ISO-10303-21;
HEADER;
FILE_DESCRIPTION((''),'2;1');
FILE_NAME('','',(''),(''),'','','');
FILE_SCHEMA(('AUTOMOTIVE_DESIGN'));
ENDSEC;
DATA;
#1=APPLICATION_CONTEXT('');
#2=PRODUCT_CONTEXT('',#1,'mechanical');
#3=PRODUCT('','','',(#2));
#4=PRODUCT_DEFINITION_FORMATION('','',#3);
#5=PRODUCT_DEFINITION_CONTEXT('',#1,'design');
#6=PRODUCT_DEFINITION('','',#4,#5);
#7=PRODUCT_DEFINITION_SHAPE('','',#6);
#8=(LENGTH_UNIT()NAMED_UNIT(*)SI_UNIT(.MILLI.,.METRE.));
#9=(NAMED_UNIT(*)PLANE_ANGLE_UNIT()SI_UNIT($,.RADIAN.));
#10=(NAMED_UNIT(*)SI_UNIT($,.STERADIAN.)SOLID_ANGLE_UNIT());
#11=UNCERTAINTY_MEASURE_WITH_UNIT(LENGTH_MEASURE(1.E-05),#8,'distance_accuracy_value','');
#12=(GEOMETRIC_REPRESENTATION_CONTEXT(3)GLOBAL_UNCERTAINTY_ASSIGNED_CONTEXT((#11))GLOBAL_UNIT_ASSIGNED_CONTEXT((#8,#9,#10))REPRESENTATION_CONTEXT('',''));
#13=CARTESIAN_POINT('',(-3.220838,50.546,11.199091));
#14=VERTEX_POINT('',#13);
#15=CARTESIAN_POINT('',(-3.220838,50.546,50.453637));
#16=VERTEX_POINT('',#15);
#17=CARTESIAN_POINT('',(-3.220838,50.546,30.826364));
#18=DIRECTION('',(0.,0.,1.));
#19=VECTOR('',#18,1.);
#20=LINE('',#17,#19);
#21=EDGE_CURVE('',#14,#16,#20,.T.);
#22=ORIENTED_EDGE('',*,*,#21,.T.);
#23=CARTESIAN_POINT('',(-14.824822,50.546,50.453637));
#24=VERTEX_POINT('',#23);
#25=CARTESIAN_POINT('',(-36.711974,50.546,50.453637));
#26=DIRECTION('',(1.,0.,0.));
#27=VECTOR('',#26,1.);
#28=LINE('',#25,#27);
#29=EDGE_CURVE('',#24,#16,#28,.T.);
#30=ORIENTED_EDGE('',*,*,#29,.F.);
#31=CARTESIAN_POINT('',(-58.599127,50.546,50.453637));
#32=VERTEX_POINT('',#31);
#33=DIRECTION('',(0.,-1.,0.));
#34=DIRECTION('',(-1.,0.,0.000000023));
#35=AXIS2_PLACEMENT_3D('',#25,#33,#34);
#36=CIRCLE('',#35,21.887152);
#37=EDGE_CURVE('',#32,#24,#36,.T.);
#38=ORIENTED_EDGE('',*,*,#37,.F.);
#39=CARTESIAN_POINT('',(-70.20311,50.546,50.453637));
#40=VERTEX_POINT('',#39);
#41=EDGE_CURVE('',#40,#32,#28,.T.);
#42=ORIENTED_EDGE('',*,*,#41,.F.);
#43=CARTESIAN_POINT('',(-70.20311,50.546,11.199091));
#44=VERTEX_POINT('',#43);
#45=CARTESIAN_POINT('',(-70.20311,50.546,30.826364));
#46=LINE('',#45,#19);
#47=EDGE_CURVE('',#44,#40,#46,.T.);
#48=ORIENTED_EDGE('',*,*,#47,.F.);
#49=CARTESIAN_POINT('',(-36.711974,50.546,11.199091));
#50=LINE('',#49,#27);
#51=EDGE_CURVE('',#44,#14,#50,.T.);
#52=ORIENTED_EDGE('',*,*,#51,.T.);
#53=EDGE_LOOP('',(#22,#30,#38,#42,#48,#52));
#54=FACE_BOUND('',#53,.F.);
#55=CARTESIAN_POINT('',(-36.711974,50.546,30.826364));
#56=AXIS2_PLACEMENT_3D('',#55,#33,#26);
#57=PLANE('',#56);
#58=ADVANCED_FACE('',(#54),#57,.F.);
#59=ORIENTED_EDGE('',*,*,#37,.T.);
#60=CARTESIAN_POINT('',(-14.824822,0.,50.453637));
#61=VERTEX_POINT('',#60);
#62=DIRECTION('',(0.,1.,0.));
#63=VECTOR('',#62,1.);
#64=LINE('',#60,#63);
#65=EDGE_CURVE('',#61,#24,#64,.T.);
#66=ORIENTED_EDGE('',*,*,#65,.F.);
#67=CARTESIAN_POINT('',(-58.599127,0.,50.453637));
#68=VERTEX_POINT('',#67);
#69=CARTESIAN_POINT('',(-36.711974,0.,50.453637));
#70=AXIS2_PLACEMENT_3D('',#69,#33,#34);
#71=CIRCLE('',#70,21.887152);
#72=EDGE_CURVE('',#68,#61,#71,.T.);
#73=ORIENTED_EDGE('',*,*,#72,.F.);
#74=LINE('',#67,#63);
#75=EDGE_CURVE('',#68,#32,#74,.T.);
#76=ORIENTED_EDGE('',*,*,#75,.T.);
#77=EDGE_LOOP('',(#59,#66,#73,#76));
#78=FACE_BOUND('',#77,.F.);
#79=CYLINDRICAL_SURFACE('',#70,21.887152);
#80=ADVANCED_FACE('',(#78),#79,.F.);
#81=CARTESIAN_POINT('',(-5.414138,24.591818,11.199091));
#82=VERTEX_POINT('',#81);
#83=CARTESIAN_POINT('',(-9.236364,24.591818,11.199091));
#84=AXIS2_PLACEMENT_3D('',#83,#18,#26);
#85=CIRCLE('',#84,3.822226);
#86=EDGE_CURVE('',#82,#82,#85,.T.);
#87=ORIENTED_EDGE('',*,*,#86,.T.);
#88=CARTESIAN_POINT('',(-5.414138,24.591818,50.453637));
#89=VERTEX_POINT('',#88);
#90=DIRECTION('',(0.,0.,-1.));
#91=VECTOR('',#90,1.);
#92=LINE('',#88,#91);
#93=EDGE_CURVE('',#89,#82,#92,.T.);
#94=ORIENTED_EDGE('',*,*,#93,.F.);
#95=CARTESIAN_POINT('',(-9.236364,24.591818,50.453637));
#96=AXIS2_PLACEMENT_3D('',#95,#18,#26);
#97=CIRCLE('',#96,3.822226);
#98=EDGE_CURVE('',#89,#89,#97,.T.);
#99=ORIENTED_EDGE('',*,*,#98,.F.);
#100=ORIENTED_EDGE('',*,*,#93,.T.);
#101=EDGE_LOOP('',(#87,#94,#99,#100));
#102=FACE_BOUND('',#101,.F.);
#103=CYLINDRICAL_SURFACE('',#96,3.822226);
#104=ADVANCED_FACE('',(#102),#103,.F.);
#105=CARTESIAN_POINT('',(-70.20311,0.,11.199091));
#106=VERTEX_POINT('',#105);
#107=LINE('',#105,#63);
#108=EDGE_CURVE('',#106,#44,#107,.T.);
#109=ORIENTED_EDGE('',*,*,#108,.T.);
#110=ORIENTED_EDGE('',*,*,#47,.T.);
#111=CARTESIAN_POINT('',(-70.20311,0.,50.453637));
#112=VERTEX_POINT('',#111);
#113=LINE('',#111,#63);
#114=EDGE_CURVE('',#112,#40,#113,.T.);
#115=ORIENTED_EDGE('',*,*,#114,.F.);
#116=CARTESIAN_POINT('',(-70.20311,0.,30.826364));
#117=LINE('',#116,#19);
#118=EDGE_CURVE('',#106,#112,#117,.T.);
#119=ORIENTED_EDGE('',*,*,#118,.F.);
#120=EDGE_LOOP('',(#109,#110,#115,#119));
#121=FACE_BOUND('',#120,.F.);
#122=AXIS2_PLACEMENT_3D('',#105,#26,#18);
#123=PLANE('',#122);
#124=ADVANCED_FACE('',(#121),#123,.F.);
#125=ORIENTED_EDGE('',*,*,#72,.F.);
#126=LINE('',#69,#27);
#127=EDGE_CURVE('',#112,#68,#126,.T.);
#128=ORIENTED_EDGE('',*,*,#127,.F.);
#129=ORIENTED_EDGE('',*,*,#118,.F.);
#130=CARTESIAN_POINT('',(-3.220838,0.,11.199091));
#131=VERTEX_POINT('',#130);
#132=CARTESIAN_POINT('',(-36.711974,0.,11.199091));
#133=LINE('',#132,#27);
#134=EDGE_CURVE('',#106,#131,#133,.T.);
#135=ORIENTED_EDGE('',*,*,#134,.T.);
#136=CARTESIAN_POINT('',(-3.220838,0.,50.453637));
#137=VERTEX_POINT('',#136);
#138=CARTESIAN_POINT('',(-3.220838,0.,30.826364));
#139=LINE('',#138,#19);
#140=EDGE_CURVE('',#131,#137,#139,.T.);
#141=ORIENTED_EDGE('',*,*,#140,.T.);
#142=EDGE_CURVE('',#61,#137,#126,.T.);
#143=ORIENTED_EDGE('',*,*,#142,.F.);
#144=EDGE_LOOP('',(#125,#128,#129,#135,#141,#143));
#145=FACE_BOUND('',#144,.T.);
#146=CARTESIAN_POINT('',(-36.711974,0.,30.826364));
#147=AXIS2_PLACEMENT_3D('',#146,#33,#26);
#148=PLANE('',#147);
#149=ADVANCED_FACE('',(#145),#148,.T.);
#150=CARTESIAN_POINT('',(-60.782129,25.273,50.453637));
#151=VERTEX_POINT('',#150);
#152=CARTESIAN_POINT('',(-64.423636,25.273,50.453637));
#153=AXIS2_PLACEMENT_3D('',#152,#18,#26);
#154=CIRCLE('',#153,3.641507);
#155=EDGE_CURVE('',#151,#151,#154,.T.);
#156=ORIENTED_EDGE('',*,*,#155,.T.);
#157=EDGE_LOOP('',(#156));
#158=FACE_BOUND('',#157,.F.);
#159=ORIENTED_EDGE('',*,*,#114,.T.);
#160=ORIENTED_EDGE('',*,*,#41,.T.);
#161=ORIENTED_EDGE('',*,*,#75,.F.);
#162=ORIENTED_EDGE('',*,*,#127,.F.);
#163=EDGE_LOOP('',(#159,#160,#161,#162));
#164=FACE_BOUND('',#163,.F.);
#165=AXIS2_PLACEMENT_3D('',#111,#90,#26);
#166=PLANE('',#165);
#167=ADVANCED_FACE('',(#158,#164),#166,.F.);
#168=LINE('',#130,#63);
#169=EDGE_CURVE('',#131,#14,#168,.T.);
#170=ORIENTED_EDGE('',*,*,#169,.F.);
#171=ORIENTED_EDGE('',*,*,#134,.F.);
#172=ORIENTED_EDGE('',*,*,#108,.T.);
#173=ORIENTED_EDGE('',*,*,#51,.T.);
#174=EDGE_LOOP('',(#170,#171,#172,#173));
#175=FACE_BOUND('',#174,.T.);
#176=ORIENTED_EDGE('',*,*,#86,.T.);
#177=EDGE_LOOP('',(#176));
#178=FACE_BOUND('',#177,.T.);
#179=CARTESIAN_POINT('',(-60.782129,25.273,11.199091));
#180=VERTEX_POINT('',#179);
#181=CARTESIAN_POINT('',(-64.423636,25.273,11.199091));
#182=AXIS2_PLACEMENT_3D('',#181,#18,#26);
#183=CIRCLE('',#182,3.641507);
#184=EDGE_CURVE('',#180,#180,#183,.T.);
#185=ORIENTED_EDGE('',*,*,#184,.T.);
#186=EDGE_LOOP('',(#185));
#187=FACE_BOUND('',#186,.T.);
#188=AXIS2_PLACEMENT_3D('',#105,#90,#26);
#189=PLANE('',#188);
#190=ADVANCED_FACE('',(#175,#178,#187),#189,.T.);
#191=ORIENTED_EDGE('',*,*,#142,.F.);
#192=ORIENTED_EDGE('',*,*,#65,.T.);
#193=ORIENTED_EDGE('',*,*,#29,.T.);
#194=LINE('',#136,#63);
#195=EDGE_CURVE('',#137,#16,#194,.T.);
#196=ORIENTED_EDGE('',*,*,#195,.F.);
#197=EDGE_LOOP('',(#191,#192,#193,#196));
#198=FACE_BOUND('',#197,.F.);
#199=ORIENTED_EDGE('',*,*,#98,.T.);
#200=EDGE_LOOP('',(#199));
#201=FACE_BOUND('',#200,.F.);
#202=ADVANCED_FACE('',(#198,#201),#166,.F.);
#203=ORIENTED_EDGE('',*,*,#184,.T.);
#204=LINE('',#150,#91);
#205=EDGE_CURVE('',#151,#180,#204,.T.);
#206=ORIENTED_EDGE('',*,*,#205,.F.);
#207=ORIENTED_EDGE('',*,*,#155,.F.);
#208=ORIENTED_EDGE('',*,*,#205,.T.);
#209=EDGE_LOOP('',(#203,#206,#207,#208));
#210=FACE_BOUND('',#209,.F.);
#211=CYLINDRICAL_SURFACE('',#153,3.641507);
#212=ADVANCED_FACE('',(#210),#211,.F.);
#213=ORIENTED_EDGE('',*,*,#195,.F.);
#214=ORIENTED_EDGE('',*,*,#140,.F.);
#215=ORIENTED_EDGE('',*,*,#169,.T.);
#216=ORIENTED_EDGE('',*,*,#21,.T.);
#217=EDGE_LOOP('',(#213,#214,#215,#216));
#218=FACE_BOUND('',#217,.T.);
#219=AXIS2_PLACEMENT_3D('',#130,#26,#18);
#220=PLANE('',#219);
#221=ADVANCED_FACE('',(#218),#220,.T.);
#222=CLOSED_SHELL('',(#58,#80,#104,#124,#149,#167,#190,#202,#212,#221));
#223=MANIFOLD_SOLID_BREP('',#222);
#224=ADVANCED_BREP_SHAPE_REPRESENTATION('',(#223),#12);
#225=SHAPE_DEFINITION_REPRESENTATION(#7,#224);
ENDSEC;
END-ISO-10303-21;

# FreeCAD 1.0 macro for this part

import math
import FreeCAD as App
import Part
import Sketcher
from FreeCAD import Vector
Q = App.Units.Quantity

doc = App.newDocument("Part")
body = doc.addObject("PartDesign::Body", "Body")

# Sketch on XZ plane
sketch1 = body.newObject("Sketcher::SketchObject", "Sketch")
sketch1.AttachmentSupport = (doc.getObject("XZ_Plane"), [""])
sketch1.MapMode = "FlatFace"
sketch1.addGeometry(Part.LineSegment(Vector(-70, 50, 0), Vector(-70, 11, 0)), False)
sketch1.addGeometry(Part.LineSegment(Vector(-70, 11, 0), Vector(-3, 11, 0)), False)
sketch1.addGeometry(Part.LineSegment(Vector(-3, 11, 0), Vector(-3, 50, 0)), False)
sketch1.addGeometry(Part.LineSegment(Vector(-3, 50, 0), Vector(-70, 50, 0)), False)
sketch1.addConstraint(Sketcher.Constraint("Coincident", 0, 2, 1, 1))
sketch1.addConstraint(Sketcher.Constraint("Coincident", 1, 2, 2, 1))
sketch1.addConstraint(Sketcher.Constraint("Coincident", 2, 2, 3, 1))
sketch1.addConstraint(Sketcher.Constraint("Coincident", 3, 2, 0, 1))
sketch1.addConstraint(Sketcher.Constraint("Vertical", 0))
sketch1.addConstraint(Sketcher.Constraint("Horizontal", 1))
sketch1.addConstraint(Sketcher.Constraint("Vertical", 2))
sketch1.addConstraint(Sketcher.Constraint("Horizontal", 3))
sketch1.addConstraint(Sketcher.Constraint("DistanceX", 1, 1, 1, 2, Q("66.982273 mm")))
sketch1.addConstraint(Sketcher.Constraint("DistanceY", 0, 2, 0, 1, Q("39.254546 mm")))
sketch1.addConstraint(Sketcher.Constraint("DistanceX", 0, 2, -1, 1, Q("70.20311 mm")))
sketch1.addConstraint(Sketcher.Constraint("DistanceY", -1, 1, 0, 2, Q("11.199091 mm")))
pad1 = body.newObject("PartDesign::Pad", "Pad")
pad1.Profile = sketch1
pad1.Length = Q("1.99 in")
pad1.Reversed = True

# Sketch on XZ plane
sketch2 = body.newObject("Sketcher::SketchObject", "Sketch001")
sketch2.AttachmentSupport = (doc.getObject("XZ_Plane"), [""])
sketch2.MapMode = "FlatFace"
sketch2.addGeometry(Part.ArcOfCircle(Part.Circle(Vector(-37, 50, 0), Vector(0, 0, 1), 22), math.radians(180), math.radians(360)), False)
sketch2.addGeometry(Part.ArcOfCircle(Part.Circle(Vector(-37, 50, 0), Vector(0, 0, 1), 22), math.radians(0), math.radians(180)), False)
sketch2.addConstraint(Sketcher.Constraint("Tangent", 0, 1, 1, 2))
sketch2.addConstraint(Sketcher.Constraint("Coincident", 1, 1, 0, 2))
sketch2.addConstraint(Sketcher.Constraint("Horizontal", 1, 3, 0, 1))
sketch2.addConstraint(Sketcher.Constraint("Horizontal", 0, 1, 1, 1))
sketch2.addConstraint(Sketcher.Constraint("Radius", 0, Q("21.887152 mm")))
sketch2.addConstraint(Sketcher.Constraint("DistanceX", 0, 3, -1, 1, Q("36.711974 mm")))
sketch2.addConstraint(Sketcher.Constraint("DistanceY", -1, 1, 0, 3, Q("50.453637 mm")))
pocket1 = body.newObject("PartDesign::Pocket", "Pocket")
pocket1.Profile = sketch2
pocket1.Length = Q("2.37 in")

# Sketch on XY plane
sketch3 = body.newObject("Sketcher::SketchObject", "Sketch002")
sketch3.AttachmentSupport = (doc.getObject("XY_Plane"), [""])
sketch3.MapMode = "FlatFace"
sketch3.AttachmentOffset = App.Placement(Vector(0, 0, 50.453637), App.Rotation())
sketch3.addGeometry(Part.Circle(Vector(-64.4, 25.3, 0), Vector(0, 0, 1), 3.6), False)
sketch3.addGeometry(Part.Circle(Vector(-9.2, 24.6, 0), Vector(0, 0, 1), 3.8), False)
sketch3.addConstraint(Sketcher.Constraint("DistanceY", -1, 1, 0, 3, Q("0.995 in")))
sketch3.addConstraint(Sketcher.Constraint("Diameter", 0, Q("7.283014 mm")))
sketch3.addConstraint(Sketcher.Constraint("Diameter", 1, Q("7.644452 mm")))
sketch3.addConstraint(Sketcher.Constraint("DistanceY", -1, 1, 1, 3, Q("24.591818 mm")))
sketch3.addConstraint(Sketcher.Constraint("DistanceX", 0, 3, -1, 1, Q("64.423636 mm")))
sketch3.addConstraint(Sketcher.Constraint("DistanceX", 1, 3, -1, 1, Q("9.236364 mm")))
pocket2 = body.newObject("PartDesign::Pocket", "Pocket001")
pocket2.Profile = sketch3
pocket2.Length = Q("5.38 in")

doc.recompute()
